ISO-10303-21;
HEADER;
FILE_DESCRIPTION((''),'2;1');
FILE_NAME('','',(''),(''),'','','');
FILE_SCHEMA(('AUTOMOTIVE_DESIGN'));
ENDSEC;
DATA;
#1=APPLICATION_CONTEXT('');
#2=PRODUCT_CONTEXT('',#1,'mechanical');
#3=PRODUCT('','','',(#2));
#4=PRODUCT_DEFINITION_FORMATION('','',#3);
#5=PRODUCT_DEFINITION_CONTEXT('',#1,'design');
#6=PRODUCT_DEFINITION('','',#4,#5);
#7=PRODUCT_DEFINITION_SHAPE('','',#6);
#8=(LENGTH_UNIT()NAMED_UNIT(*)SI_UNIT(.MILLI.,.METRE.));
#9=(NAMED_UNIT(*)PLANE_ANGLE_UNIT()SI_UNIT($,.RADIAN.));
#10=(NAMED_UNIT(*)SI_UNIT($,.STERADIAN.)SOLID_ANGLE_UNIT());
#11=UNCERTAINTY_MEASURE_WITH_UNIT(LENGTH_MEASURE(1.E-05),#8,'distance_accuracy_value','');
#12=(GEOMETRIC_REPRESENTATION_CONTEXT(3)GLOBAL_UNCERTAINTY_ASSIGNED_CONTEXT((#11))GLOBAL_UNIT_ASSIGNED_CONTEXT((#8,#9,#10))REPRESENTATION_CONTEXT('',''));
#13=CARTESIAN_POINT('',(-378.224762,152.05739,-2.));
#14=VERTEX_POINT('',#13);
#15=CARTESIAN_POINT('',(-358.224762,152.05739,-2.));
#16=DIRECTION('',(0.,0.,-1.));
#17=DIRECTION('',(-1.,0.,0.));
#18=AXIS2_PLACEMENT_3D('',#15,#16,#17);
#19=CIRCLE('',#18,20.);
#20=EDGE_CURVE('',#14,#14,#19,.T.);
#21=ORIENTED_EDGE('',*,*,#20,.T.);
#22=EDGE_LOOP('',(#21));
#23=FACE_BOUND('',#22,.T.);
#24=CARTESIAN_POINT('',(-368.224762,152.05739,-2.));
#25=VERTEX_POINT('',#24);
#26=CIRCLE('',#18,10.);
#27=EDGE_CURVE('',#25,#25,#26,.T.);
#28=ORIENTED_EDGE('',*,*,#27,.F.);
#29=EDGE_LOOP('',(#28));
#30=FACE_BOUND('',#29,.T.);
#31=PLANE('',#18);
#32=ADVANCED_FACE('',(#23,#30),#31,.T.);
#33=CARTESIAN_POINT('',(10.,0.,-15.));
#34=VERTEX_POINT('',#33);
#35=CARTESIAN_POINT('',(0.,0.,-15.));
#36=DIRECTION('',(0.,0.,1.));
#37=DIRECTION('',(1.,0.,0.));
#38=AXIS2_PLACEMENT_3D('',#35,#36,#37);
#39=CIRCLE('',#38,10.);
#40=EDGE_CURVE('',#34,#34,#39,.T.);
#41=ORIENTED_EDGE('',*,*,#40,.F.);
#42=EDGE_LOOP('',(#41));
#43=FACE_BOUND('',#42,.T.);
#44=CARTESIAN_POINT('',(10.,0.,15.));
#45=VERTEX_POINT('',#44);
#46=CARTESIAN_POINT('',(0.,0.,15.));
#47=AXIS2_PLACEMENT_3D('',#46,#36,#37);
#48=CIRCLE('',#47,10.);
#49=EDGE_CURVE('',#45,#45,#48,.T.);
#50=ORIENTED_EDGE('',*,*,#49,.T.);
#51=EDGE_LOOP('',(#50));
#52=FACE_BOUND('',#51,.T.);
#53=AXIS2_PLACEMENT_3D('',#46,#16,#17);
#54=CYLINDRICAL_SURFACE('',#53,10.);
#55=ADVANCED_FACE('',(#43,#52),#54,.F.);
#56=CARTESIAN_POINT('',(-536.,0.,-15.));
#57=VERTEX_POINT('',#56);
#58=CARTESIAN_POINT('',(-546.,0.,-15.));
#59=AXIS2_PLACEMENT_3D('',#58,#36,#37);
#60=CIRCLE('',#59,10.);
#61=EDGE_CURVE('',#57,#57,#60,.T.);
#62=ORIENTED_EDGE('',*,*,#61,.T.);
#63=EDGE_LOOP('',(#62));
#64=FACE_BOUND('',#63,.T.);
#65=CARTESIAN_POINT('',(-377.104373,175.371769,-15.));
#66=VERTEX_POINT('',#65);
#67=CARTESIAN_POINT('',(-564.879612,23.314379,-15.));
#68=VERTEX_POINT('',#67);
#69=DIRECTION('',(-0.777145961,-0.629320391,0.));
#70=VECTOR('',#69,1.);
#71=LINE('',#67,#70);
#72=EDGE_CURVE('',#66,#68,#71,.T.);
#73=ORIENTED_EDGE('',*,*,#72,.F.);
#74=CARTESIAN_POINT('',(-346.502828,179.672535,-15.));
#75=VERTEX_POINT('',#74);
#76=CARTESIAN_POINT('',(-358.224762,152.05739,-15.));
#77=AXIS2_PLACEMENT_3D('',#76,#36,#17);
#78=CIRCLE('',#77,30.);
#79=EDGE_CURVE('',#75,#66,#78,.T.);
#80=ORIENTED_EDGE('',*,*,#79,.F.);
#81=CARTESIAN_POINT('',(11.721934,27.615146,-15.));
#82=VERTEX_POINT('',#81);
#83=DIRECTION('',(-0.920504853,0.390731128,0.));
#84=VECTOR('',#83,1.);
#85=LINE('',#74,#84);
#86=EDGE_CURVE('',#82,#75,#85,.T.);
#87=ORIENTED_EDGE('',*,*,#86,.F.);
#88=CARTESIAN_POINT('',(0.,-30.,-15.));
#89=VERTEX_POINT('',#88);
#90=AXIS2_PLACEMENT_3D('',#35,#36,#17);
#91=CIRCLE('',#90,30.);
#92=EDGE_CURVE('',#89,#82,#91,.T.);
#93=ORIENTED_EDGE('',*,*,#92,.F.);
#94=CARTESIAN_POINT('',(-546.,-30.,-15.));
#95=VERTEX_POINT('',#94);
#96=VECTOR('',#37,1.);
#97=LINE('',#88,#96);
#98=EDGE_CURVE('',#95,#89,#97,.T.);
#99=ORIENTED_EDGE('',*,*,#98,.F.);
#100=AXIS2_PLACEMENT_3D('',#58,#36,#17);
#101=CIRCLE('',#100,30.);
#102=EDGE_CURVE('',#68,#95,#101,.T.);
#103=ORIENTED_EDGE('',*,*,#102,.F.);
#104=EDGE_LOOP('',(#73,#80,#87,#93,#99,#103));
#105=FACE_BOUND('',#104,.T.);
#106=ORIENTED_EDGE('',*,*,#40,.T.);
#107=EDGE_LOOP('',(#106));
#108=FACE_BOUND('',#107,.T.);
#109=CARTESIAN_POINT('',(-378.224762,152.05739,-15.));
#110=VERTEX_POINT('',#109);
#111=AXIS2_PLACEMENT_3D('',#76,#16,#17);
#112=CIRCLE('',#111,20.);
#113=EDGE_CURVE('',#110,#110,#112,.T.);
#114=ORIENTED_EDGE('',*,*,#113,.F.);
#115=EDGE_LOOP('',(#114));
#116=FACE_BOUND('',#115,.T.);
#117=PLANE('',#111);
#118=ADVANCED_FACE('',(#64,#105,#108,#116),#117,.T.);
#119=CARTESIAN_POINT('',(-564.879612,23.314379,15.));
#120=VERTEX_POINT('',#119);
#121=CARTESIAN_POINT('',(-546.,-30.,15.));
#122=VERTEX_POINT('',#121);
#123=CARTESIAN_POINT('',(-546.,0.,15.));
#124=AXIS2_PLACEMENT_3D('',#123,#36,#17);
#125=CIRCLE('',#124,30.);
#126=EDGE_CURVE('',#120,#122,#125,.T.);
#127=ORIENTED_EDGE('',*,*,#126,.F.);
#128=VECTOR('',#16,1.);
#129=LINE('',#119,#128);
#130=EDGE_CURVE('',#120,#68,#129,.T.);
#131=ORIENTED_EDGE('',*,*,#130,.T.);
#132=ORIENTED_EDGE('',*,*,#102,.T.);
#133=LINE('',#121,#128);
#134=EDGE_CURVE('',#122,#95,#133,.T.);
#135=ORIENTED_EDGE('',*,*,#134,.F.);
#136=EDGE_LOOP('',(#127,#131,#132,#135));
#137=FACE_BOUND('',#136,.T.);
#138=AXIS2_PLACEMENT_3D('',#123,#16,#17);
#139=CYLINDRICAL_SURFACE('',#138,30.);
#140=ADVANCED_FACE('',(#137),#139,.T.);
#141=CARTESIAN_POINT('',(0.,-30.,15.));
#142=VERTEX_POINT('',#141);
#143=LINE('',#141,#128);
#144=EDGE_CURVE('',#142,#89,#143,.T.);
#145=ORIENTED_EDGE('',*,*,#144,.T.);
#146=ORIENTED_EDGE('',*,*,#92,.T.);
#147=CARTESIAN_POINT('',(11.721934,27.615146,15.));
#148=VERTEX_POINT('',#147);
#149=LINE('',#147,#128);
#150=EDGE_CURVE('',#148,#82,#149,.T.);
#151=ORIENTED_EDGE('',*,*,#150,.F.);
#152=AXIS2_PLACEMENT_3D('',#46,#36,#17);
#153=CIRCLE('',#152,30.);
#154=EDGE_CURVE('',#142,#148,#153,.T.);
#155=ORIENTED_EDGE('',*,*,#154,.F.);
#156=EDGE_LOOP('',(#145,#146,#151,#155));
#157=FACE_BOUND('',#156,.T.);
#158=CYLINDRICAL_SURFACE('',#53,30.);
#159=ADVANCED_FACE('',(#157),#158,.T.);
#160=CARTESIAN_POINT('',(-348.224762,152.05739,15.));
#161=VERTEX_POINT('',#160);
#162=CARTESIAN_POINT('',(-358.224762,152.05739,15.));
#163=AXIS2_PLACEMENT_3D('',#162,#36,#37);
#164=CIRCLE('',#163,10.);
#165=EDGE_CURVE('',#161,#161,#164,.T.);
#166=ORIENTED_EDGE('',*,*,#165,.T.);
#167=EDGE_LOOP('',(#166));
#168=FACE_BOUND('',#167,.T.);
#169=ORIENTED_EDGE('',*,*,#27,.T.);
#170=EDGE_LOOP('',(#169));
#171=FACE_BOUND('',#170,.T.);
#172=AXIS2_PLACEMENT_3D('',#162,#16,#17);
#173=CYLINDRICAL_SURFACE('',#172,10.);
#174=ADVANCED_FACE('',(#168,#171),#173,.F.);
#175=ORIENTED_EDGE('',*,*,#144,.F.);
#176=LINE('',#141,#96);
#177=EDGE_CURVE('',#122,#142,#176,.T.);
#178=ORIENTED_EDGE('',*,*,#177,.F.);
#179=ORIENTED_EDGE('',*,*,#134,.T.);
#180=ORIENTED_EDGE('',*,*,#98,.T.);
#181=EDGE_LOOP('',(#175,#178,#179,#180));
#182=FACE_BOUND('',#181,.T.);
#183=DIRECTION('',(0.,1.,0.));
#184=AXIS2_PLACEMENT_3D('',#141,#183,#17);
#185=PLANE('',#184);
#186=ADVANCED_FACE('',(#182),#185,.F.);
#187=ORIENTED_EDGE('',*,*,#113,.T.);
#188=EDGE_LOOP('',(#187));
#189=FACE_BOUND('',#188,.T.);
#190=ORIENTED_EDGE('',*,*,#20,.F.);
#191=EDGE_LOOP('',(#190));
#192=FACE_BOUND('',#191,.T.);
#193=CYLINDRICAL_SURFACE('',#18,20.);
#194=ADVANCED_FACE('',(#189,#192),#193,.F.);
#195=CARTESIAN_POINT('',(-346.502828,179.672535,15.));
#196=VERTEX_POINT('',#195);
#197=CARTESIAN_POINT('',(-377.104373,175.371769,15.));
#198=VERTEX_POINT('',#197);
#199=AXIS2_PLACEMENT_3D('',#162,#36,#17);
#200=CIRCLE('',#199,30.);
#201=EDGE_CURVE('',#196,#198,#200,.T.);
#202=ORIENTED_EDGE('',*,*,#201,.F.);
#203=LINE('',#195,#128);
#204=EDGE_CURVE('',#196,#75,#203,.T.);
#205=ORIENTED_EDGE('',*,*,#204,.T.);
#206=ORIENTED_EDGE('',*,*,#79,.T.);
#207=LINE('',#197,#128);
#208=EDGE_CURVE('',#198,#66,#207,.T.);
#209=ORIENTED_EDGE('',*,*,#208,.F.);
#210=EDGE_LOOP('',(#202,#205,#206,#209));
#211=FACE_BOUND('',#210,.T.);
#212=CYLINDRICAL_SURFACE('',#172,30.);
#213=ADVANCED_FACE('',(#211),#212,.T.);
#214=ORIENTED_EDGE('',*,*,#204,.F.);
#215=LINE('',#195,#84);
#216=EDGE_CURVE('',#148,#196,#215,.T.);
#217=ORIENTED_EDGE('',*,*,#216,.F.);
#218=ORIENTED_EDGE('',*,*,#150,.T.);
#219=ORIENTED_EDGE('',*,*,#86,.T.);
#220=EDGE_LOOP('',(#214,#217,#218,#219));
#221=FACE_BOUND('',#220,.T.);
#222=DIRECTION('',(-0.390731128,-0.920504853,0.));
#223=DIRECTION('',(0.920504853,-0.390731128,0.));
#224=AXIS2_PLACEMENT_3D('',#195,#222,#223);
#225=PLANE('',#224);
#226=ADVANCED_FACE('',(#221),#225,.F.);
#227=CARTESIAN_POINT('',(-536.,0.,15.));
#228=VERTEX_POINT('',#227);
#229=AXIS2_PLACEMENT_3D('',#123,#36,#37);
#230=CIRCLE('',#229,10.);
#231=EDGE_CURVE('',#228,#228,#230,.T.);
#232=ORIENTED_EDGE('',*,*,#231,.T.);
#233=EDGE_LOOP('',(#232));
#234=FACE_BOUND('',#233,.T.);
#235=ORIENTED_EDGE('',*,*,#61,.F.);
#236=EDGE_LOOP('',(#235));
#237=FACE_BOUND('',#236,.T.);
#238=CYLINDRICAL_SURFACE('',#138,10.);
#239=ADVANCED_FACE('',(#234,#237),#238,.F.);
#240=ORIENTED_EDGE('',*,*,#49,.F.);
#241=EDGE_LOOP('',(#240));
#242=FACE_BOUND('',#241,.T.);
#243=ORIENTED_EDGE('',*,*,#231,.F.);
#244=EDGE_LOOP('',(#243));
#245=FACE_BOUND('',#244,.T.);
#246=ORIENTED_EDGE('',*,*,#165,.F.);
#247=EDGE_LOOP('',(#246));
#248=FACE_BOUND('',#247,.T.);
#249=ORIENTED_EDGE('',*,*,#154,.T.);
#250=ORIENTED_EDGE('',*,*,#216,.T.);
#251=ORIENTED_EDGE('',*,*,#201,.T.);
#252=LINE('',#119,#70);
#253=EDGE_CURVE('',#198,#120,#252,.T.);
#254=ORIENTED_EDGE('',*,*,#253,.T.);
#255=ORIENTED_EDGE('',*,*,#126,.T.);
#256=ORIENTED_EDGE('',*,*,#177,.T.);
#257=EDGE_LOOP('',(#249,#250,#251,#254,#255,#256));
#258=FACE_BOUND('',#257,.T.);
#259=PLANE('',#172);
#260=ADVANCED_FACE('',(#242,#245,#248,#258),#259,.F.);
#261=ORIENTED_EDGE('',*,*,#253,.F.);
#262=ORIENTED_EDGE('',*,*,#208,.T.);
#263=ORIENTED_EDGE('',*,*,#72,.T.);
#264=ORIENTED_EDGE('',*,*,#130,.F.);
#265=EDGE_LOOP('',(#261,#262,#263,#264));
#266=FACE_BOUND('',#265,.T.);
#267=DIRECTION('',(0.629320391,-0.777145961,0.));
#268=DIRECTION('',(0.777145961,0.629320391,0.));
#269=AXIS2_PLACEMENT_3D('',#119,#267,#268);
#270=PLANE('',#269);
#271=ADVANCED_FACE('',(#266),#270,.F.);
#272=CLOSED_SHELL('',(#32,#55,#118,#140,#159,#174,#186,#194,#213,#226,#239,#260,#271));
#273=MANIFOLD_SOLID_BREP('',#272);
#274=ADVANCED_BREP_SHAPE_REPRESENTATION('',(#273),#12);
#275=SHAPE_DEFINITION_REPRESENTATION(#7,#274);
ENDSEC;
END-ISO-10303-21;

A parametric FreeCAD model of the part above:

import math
import FreeCAD as App
import Part
import Sketcher
Q = App.Units.Quantity

doc = App.newDocument("Part")
params = doc.addObject("Spreadsheet::Sheet", "Params")
for row, (alias, value) in enumerate([
    ("sketch1_diameter", "20 mm"),
    ("sketch1_radius", "30 mm"),
    ("sketch1_width", "546 mm"),
    ("pad1_length", "30 mm"),
    ("sketch2_diameter", "40 mm"),
    ("pocket1_length", "13 mm"),
], start=1):
    params.set(f"A{row}", alias)
    params.set(f"B{row}", "=" + value)
    params.setAlias(f"B{row}", alias)

body = doc.addObject("PartDesign::Body", "Body")

# Sketch on XY plane
sketch1 = body.newObject("Sketcher::SketchObject", "Sketch")
sketch1.AttachmentSupport = (doc.getObject("XY_Plane"), [""])
sketch1.MapMode = "FlatFace"
sketch1.addGeometry([
    Part.LineSegment(App.Vector(12, 28, 0), App.Vector(-347, 180, 0)),  # 0
    Part.ArcOfCircle(Part.Circle(App.Vector(-358, 152, 0), App.Vector(0, 0, 1), 30), math.radians(67), math.radians(129)),  # 1
    Part.LineSegment(App.Vector(-377, 175, 0), App.Vector(-565, 23, 0)),  # 2
    Part.ArcOfCircle(Part.Circle(App.Vector(-546, 0, 0), App.Vector(0, 0, 1), 30), math.radians(129), math.radians(270)),  # 3
    Part.LineSegment(App.Vector(-546, -30, 0), App.Vector(0, -30, 0)),  # 4
    Part.ArcOfCircle(Part.Circle(App.Vector(0, 0, 0), App.Vector(0, 0, 1), 30), math.radians(-90), math.radians(67)),  # 5
    Part.Circle(App.Vector(0, 0, 0), App.Vector(0, 0, 1), 10),  # 6
    Part.Circle(App.Vector(-546, 0, 0), App.Vector(0, 0, 1), 10),  # 7
    Part.Circle(App.Vector(-358, 152, 0), App.Vector(0, 0, 1), 10),  # 8
], False)
sketch1.addConstraint([
    Sketcher.Constraint("Tangent", 0, 2, 1, 1),
    Sketcher.Constraint("Tangent", 1, 2, 2, 1),
    Sketcher.Constraint("Tangent", 2, 2, 3, 1),
    Sketcher.Constraint("Tangent", 3, 2, 4, 1),
    Sketcher.Constraint("Tangent", 4, 2, 5, 1),
    Sketcher.Constraint("Tangent", 5, 2, 0, 1),
    Sketcher.Constraint("Horizontal", 4),
    Sketcher.Constraint("Coincident", 5, 3, -1, 1),
    Sketcher.Constraint("Coincident", 6, 3, -1, 1),
    Sketcher.Constraint("Coincident", 7, 3, 3, 3),
    Sketcher.Constraint("Coincident", 8, 3, 1, 3),
    Sketcher.Constraint("Equal", 1, 3),
    Sketcher.Constraint("Equal", 3, 5),
    Sketcher.Constraint("Equal", 6, 7),
    Sketcher.Constraint("Equal", 7, 8),
    Sketcher.Constraint("Diameter", 6, 20.0),
    Sketcher.Constraint("Radius", 1, 30.0),
    Sketcher.Constraint("DistanceX", 4, 1, 4, 2, 546.0),
    Sketcher.Constraint("Angle", 0, Q("157 deg")),
    Sketcher.Constraint("Angle", 2, Q("-141 deg")),
])
sketch1.setExpression("Constraints[15]", "Params.sketch1_diameter")
sketch1.setExpression("Constraints[16]", "Params.sketch1_radius")
sketch1.setExpression("Constraints[17]", "Params.sketch1_width")
pad1 = body.newObject("PartDesign::Pad", "Pad")
pad1.Profile = sketch1
pad1.setExpression("Length", "Params.pad1_length")
pad1.Midplane = True

# Sketch on XY plane
sketch2 = body.newObject("Sketcher::SketchObject", "Sketch001")
sketch2.AttachmentSupport = (doc.getObject("XY_Plane"), [""])
sketch2.MapMode = "FlatFace"
sketch2.AttachmentOffset = App.Placement(App.Vector(0, 0, -15), App.Rotation())
sketch2.addGeometry(Part.Circle(App.Vector(-358, 152, 0), App.Vector(0, 0, 1), 20), False)
sketch2.addConstraint([
    Sketcher.Constraint("Diameter", 0, 40.0),
    Sketcher.Constraint("DistanceX", 0, 3, -1, 1, 358.224762),
    Sketcher.Constraint("DistanceY", -1, 1, 0, 3, 152.05739),
])
sketch2.setExpression("Constraints[0]", "Params.sketch2_diameter")
pocket1 = body.newObject("PartDesign::Pocket", "Pocket")
pocket1.Profile = sketch2
pocket1.setExpression("Length", "Params.pocket1_length")
pocket1.Reversed = True

doc.recompute()
